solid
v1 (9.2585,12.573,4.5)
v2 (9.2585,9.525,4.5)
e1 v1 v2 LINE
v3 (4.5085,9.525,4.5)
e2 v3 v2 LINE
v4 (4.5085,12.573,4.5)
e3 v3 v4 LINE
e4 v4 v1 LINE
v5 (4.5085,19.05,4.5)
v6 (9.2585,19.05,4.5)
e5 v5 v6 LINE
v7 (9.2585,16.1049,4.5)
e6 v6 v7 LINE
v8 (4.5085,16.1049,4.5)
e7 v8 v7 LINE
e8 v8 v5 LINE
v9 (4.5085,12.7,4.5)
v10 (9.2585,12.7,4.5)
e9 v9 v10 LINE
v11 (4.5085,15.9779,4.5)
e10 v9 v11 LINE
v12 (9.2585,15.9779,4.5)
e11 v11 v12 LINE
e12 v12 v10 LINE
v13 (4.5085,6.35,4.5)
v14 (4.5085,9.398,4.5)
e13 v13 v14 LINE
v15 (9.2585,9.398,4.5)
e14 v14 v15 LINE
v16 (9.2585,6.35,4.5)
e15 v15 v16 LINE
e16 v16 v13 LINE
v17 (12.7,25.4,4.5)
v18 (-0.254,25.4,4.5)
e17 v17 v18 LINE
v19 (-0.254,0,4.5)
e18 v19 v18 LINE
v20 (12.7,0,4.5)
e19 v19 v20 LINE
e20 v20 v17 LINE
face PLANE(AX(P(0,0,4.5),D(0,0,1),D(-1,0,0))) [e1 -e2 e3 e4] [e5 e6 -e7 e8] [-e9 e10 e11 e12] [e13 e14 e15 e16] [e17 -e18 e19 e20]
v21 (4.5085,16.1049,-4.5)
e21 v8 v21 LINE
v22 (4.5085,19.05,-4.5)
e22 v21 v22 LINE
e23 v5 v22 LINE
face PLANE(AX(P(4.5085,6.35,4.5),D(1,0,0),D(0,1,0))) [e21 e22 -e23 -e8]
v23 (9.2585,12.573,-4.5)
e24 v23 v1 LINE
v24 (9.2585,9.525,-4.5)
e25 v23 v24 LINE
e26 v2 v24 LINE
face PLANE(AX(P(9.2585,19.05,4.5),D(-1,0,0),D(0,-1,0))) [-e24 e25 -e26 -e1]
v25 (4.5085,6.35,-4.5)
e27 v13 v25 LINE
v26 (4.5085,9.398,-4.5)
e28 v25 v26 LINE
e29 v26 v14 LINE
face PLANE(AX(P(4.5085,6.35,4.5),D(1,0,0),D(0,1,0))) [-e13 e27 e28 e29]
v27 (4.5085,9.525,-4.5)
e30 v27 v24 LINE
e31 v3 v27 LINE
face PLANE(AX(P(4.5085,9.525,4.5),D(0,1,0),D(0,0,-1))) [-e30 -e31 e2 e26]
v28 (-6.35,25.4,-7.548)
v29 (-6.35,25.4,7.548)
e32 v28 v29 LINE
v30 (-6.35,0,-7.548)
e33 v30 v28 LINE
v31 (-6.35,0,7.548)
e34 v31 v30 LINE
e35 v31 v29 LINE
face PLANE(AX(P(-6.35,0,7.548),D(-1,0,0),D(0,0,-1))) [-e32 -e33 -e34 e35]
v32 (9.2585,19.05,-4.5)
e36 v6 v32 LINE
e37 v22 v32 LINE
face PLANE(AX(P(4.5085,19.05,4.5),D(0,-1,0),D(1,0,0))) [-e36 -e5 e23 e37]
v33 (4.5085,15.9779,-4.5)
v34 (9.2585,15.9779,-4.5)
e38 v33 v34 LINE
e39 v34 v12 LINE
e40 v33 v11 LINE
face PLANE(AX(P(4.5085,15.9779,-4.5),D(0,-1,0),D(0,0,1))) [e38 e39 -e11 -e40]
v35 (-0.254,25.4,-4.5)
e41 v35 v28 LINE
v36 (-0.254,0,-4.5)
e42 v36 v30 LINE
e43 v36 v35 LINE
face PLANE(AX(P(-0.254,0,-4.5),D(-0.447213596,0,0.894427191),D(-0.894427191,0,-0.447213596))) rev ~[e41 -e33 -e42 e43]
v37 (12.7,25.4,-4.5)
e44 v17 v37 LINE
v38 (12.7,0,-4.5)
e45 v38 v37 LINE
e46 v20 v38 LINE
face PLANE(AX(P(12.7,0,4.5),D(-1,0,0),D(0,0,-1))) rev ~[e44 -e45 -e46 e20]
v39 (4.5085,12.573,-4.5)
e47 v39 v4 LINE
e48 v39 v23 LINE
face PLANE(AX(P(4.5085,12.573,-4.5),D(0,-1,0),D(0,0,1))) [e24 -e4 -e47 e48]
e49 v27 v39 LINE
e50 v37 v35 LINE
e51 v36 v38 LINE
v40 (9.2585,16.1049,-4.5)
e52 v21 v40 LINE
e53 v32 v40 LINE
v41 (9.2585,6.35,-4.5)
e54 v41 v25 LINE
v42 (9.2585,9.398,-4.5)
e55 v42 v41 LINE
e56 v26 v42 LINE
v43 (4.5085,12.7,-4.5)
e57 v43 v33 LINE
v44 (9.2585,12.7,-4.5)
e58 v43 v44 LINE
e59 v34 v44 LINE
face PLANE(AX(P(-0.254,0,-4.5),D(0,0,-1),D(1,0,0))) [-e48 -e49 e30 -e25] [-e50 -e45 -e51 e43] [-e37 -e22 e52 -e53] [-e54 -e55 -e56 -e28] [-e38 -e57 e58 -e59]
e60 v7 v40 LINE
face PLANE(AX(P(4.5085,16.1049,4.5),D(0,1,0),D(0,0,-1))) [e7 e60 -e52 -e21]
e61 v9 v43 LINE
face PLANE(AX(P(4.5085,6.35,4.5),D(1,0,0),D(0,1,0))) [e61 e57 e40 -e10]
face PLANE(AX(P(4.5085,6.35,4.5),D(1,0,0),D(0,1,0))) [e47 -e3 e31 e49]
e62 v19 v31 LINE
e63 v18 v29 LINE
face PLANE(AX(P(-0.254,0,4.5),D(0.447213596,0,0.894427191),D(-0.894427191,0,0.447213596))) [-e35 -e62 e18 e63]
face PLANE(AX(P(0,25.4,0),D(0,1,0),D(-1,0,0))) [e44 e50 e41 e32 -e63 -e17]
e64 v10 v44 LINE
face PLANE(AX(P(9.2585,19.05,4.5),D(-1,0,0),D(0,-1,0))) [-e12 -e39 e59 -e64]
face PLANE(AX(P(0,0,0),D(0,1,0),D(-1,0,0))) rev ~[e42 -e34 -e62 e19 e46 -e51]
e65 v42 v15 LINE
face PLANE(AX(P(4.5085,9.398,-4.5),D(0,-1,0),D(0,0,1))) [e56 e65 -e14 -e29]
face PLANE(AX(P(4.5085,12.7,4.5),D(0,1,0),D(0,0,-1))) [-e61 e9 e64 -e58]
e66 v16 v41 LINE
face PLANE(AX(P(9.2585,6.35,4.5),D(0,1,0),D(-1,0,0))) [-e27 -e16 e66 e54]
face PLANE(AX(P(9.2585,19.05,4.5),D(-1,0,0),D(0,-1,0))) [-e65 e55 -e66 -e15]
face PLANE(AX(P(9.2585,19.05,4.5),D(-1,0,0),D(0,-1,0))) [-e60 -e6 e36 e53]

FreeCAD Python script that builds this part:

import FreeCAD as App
import Part
import Sketcher

V = App.Vector
Q = App.Units.Quantity


def add_polygon(sketch, points):
    """Adds a closed chain of lines whose ends are joined by coincident constraints."""
    first, n = sketch.GeometryCount, len(points)
    for a, b in zip(points, points[1:] + points[:1]):
        sketch.addGeometry(Part.LineSegment(App.Vector(*a, 0), App.Vector(*b, 0)), False)
    for i in range(n):
        sketch.addConstraint(Sketcher.Constraint("Coincident", first + i, 2, first + (i + 1) % n, 1))

doc = App.newDocument("Part")
params = doc.addObject("Spreadsheet::Sheet", "Params")
for row, (alias, value) in enumerate([
    ("sketch1_width", "0.51 in"),
    ("pad1_length", "1 in"),
    ("sketch2_height", "0.5 in"),
    ("sketch2_width", "0.187 in"),
    ("sketch3_width", "0.005 in"),
    ("pad2_length", "0.1870079 in"),
], start=1):
    params.set(f"A{row}", alias)
    params.set(f"B{row}", "=" + value)
    params.setAlias(f"B{row}", alias)

body = doc.addObject("PartDesign::Body", "Body")

sketch1 = doc.addObject("Sketcher::SketchObject", "Sketch")
body.addObject(sketch1)
sketch1.AttachmentSupport = (doc.XZ_Plane, [""])
sketch1.MapMode = "FlatFace"
add_polygon(sketch1, [(0, 4), (13, 4), (13, -4), (0, -4), (-6, -8), (-6, 8)])
sketch1.addConstraint([
    Sketcher.Constraint("Horizontal", 0),
    Sketcher.Constraint("Vertical", 1),
    Sketcher.Constraint("Horizontal", 2),
    Sketcher.Constraint("Vertical", 4),
    Sketcher.Constraint("Symmetric", 2, 2, 5, 2, -1),
    Sketcher.Constraint("Equal", 3, 5),
    Sketcher.Constraint("DistanceX", 0, 1, 0, 2, Q("0.51 in")),
    Sketcher.Constraint("DistanceX", 3, 2, 2, 2, Q("0.24 in")),
    Sketcher.Constraint("DistanceY", 3, 2, 2, 2, Q("0.12 in")),
    Sketcher.Constraint("DistanceY", 1, 2, 1, 1, Q("9 mm")),
    Sketcher.Constraint("DistanceX", -1, 1, 0, 2, Q("0.5 in")),
])
sketch1.setExpression("Constraints[12]", "Params.sketch1_width")
pad1 = doc.addObject("PartDesign::Pad", "Pad")
body.addObject(pad1)
pad1.Profile = sketch1
pad1.setExpression("Length", "Params.pad1_length")
pad1.Reversed = True

sketch2 = doc.addObject("Sketcher::SketchObject", "Sketch001")
body.addObject(sketch2)
sketch2.AttachmentSupport = (doc.XY_Plane, [""])
sketch2.MapMode = "FlatFace"
sketch2.AttachmentOffset = App.Placement(V(0, 0, 4.5), App.Rotation())
add_polygon(sketch2, [(9.3, 19.1), (4.5, 19.1), (4.5, 6.3), (9.3, 6.3)])
sketch2.addConstraint([
    Sketcher.Constraint("Horizontal", 0),
    Sketcher.Constraint("Vertical", 1),
    Sketcher.Constraint("Horizontal", 2),
    Sketcher.Constraint("Vertical", 3),
    Sketcher.Constraint("DistanceY", 1, 2, 1, 1, Q("0.5 in")),
    Sketcher.Constraint("DistanceX", 0, 2, 0, 1, Q("0.187 in")),
    Sketcher.Constraint("DistanceY", -1, 1, 0, 2, Q("0.75 in")),
    Sketcher.Constraint("DistanceX", -1, 1, 0, 2, Q("0.1775 in")),
])
sketch2.setExpression("Constraints[8]", "Params.sketch2_height")
sketch2.setExpression("Constraints[9]", "Params.sketch2_width")
pocket1 = doc.addObject("PartDesign::Pocket", "Pocket")
body.addObject(pocket1)
pocket1.Profile = sketch2
pocket1.Type = "ThroughAll"

sketch3 = doc.addObject("Sketcher::SketchObject", "Sketch002")
body.addObject(sketch3)
sketch3.AttachmentSupport = (doc.YZ_Plane, [""])
sketch3.MapMode = "FlatFace"
sketch3.AttachmentOffset = App.Placement(V(0, 0, 0.1775 * 25.4), App.Rotation())
add_polygon(sketch3, [(9.53, 4.5), (9.4, 4.5), (9.4, -4.5), (9.53, -4.5)])
add_polygon(sketch3, [(12.7, 4.5), (12.57, 4.5), (12.57, -4.5), (12.7, -4.5)])
add_polygon(sketch3, [(16.1, 4.5), (15.98, 4.5), (15.98, -4.5), (16.1, -4.5)])
sketch3.addConstraint([
    Sketcher.Constraint("Horizontal", 0),
    Sketcher.Constraint("Vertical", 1),
    Sketcher.Constraint("Horizontal", 2),
    Sketcher.Constraint("Vertical", 3),
    Sketcher.Constraint("Horizontal", 4),
    Sketcher.Constraint("Vertical", 5),
    Sketcher.Constraint("Horizontal", 6),
    Sketcher.Constraint("Vertical", 7),
    Sketcher.Constraint("Horizontal", 8),
    Sketcher.Constraint("Vertical", 9),
    Sketcher.Constraint("Horizontal", 10),
    Sketcher.Constraint("Vertical", 11),
    Sketcher.Constraint("Horizontal", 3, 2, 4, 2),
    Sketcher.Constraint("Horizontal", 2, 2, 5, 2),
    Sketcher.Constraint("Horizontal", 7, 2, 8, 2),
    Sketcher.Constraint("Horizontal", 6, 2, 9, 2),
    Sketcher.Constraint("Equal", 2, 4),
    Sketcher.Constraint("Equal", 6, 8),
    Sketcher.Constraint("DistanceX", 0, 2, 0, 1, Q("0.005 in")),
    Sketcher.Constraint("DistanceX", -1, 1, 2, 2, Q("0.375 in")),
    Sketcher.Constraint("DistanceX", -1, 1, 6, 2, Q("0.5 in")),
    Sketcher.Constraint("DistanceY", 1, 2, 1, 1, Q("9 mm")),
    Sketcher.Constraint("DistanceY", -1, 1, 0, 2, Q("4.5 mm")),
    Sketcher.Constraint("DistanceX", -1, 1, 8, 2, Q("15.978 mm")),
])
sketch3.setExpression("Constraints[30]", "Params.sketch3_width")
pad2 = doc.addObject("PartDesign::Pad", "Pad001")
body.addObject(pad2)
pad2.Profile = sketch3
pad2.setExpression("Length", "Params.pad2_length")

doc.recompute()
